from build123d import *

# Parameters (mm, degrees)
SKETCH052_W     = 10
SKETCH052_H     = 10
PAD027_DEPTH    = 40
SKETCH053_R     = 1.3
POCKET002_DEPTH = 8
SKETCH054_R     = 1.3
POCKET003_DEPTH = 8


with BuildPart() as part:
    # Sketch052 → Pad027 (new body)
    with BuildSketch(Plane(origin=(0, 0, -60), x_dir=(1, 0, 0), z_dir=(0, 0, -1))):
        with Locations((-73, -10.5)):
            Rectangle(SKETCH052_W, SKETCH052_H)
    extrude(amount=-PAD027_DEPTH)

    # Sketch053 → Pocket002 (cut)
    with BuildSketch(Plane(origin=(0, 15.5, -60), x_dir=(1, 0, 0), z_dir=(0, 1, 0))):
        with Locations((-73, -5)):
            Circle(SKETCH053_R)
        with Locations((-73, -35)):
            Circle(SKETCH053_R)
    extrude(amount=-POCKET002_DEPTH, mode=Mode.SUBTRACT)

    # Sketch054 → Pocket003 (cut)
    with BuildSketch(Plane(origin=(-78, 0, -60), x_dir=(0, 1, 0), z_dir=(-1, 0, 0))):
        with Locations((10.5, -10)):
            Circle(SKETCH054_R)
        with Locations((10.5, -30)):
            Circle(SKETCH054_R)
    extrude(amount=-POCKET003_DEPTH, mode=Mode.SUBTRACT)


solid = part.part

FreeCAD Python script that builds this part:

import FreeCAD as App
import Part
import Sketcher

V = App.Vector
Q = App.Units.Quantity

doc = App.newDocument("Part")
params = doc.addObject("Spreadsheet::Sheet", "Params")
for row, (alias, value) in enumerate([
    ("sketch1_width", "10 mm"),
    ("pad1_length", "40 mm"),
    ("sketch2_diameter", "2.6 mm"),
    ("pocket1_length", "8 mm"),
    ("sketch3_diameter", "2.6 mm"),
    ("pocket2_length", "8 mm"),
], start=1):
    params.set(f"A{row}", alias)
    params.set(f"B{row}", "=" + value)
    params.setAlias(f"B{row}", alias)

body = doc.addObject("PartDesign::Body", "Body")

# Sketch on XY plane
sketch1 = body.newObject("Sketcher::SketchObject", "Sketch")
sketch1.AttachmentSupport = (doc.getObject("XY_Plane"), [""])
sketch1.MapMode = "FlatFace"
sketch1.AttachmentOffset = App.Placement(V(0, 0, -60), App.Rotation())
sketch1.addGeometry([
    Part.LineSegment(V(-78, 6, 0), V(-78, 16, 0)),
    Part.LineSegment(V(-78, 16, 0), V(-68, 16, 0)),
    Part.LineSegment(V(-68, 16, 0), V(-68, 6, 0)),
    Part.LineSegment(V(-68, 6, 0), V(-78, 6, 0)),
], False)
sketch1.addConstraint([
    Sketcher.Constraint("Coincident", 0, 2, 1, 1),
    Sketcher.Constraint("Coincident", 1, 2, 2, 1),
    Sketcher.Constraint("Coincident", 2, 2, 3, 1),
    Sketcher.Constraint("Coincident", 3, 2, 0, 1),
    Sketcher.Constraint("Vertical", 0),
    Sketcher.Constraint("Horizontal", 1),
    Sketcher.Constraint("Vertical", 2),
    Sketcher.Constraint("Horizontal", 3),
    Sketcher.Constraint("Equal", 3, 0),
    Sketcher.Constraint("DistanceX", 1, 1, 1, 2, Q("10 mm")),
    Sketcher.Constraint("DistanceX", 0, 2, -1, 1, Q("78 mm")),
    Sketcher.Constraint("DistanceY", -1, 1, 0, 2, Q("15.5 mm")),
])
sketch1.setExpression("Constraints[9]", "Params.sketch1_width")
pad1 = body.newObject("PartDesign::Pad", "Pad")
pad1.Profile = sketch1
pad1.setExpression("Length", "Params.pad1_length")

# Sketch on XZ plane
sketch2 = body.newObject("Sketcher::SketchObject", "Sketch001")
sketch2.AttachmentSupport = (doc.getObject("XZ_Plane"), [""])
sketch2.MapMode = "FlatFace"
sketch2.AttachmentOffset = App.Placement(V(0, 0, -15.5), App.Rotation())
sketch2.addGeometry([
    Part.Circle(V(-73, -55, 0), V(0, 0, 1), 1.3),
    Part.Circle(V(-73, -25, 0), V(0, 0, 1), 1.3),
], False)
sketch2.addConstraint([
    Sketcher.Constraint("Equal", 0, 1),
    Sketcher.Constraint("Vertical", 0, 3, 1, 3),
    Sketcher.Constraint("Diameter", 0, Q("2.6 mm")),
    Sketcher.Constraint("DistanceX", 0, 3, -1, 1, Q("73 mm")),
    Sketcher.Constraint("DistanceY", 0, 3, -1, 1, Q("55 mm")),
    Sketcher.Constraint("DistanceY", 1, 3, -1, 1, Q("25 mm")),
])
sketch2.setExpression("Constraints[2]", "Params.sketch2_diameter")
pocket1 = body.newObject("PartDesign::Pocket", "Pocket")
pocket1.Profile = sketch2
pocket1.setExpression("Length", "Params.pocket1_length")
pocket1.Reversed = True

# Sketch on YZ plane
sketch3 = body.newObject("Sketcher::SketchObject", "Sketch002")
sketch3.AttachmentSupport = (doc.getObject("YZ_Plane"), [""])
sketch3.MapMode = "FlatFace"
sketch3.AttachmentOffset = App.Placement(V(0, 0, -78), App.Rotation())
sketch3.addGeometry([
    Part.Circle(V(10.5, -50, 0), V(0, 0, 1), 1.3),
    Part.Circle(V(10.5, -30, 0), V(0, 0, 1), 1.3),
], False)
sketch3.addConstraint([
    Sketcher.Constraint("Equal", 0, 1),
    Sketcher.Constraint("Vertical", 0, 3, 1, 3),
    Sketcher.Constraint("Diameter", 0, Q("2.6 mm")),
    Sketcher.Constraint("DistanceY", 0, 3, -1, 1, Q("50 mm")),
    Sketcher.Constraint("DistanceY", 1, 3, -1, 1, Q("30 mm")),
    Sketcher.Constraint("DistanceX", -1, 1, 0, 3, Q("10.5 mm")),
])
sketch3.setExpression("Constraints[2]", "Params.sketch3_diameter")
pocket2 = body.newObject("PartDesign::Pocket", "Pocket001")
pocket2.Profile = sketch3
pocket2.setExpression("Length", "Params.pocket2_length")
pocket2.Reversed = True

doc.recompute()
